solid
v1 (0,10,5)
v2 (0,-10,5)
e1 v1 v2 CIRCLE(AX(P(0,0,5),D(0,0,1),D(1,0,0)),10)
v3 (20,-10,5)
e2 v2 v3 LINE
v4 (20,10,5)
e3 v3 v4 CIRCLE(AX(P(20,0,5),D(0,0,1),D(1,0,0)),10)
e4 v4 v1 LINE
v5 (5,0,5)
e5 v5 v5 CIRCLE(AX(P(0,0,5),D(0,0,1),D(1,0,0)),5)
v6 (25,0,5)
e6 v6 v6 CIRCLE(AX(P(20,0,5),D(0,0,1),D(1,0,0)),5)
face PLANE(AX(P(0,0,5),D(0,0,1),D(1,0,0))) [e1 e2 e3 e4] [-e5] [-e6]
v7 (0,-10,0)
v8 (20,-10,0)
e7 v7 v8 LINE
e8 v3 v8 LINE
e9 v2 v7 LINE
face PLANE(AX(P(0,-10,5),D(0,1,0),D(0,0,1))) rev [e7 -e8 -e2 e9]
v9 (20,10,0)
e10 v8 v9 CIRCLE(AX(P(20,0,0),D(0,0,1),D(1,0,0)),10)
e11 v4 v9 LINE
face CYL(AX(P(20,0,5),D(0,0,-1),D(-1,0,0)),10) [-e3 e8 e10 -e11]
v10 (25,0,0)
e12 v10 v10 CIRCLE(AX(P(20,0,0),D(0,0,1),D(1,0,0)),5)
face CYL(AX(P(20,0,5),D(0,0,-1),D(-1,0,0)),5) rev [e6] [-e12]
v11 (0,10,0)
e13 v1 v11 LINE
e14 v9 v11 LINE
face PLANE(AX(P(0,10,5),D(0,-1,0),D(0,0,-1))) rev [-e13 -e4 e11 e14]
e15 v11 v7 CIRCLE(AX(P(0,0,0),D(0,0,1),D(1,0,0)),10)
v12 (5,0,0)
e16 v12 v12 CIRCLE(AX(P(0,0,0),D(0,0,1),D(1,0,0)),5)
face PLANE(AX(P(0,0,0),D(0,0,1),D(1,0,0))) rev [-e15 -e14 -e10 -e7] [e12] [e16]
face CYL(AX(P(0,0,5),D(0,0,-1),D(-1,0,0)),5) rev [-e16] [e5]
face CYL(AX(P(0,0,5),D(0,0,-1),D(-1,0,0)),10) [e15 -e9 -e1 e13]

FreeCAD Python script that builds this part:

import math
import FreeCAD as App
import Part
import Sketcher
Q = App.Units.Quantity

doc = App.newDocument("Part")
body = doc.addObject("PartDesign::Body", "Body")

sketch1 = body.newObject("Sketcher::SketchObject", "Sketch")
sketch1.AttachmentSupport = (doc.getObject("XY_Plane"), [""])
sketch1.MapMode = "FlatFace"
sketch1.addGeometry([
    Part.LineSegment(App.Vector(20, 10, 0), App.Vector(0, 10, 0)),
    Part.ArcOfCircle(Part.Circle(App.Vector(0, 0, 0), App.Vector(0, 0, 1), 10), math.radians(90), math.radians(270)),
    Part.LineSegment(App.Vector(0, -10, 0), App.Vector(20, -10, 0)),
    Part.ArcOfCircle(Part.Circle(App.Vector(20, 0, 0), App.Vector(0, 0, 1), 10), math.radians(-90), math.radians(90)),
    Part.Circle(App.Vector(20, 0, 0), App.Vector(0, 0, 1), 5),
    Part.Circle(App.Vector(0, 0, 0), App.Vector(0, 0, 1), 5),
], False)
sketch1.addConstraint([
    Sketcher.Constraint("Tangent", 0, 2, 1, 1),
    Sketcher.Constraint("Tangent", 1, 2, 2, 1),
    Sketcher.Constraint("Tangent", 2, 2, 3, 1),
    Sketcher.Constraint("Tangent", 3, 2, 0, 1),
    Sketcher.Constraint("Horizontal", 0),
    Sketcher.Constraint("Horizontal", 2),
    Sketcher.Constraint("Coincident", 1, 3, -1, 1),
    Sketcher.Constraint("Coincident", 5, 3, -1, 1),
    Sketcher.Constraint("Coincident", 4, 3, 3, 3),
    Sketcher.Constraint("Equal", 4, 5),
    Sketcher.Constraint("Diameter", 4, Q("10 mm")),
    Sketcher.Constraint("Radius", 1, Q("10 mm")),
    Sketcher.Constraint("DistanceX", 0, 2, 0, 1, Q("20 mm")),
])
pad1 = body.newObject("PartDesign::Pad", "Pad")
pad1.Profile = sketch1
pad1.Length = 5

doc.recompute()
